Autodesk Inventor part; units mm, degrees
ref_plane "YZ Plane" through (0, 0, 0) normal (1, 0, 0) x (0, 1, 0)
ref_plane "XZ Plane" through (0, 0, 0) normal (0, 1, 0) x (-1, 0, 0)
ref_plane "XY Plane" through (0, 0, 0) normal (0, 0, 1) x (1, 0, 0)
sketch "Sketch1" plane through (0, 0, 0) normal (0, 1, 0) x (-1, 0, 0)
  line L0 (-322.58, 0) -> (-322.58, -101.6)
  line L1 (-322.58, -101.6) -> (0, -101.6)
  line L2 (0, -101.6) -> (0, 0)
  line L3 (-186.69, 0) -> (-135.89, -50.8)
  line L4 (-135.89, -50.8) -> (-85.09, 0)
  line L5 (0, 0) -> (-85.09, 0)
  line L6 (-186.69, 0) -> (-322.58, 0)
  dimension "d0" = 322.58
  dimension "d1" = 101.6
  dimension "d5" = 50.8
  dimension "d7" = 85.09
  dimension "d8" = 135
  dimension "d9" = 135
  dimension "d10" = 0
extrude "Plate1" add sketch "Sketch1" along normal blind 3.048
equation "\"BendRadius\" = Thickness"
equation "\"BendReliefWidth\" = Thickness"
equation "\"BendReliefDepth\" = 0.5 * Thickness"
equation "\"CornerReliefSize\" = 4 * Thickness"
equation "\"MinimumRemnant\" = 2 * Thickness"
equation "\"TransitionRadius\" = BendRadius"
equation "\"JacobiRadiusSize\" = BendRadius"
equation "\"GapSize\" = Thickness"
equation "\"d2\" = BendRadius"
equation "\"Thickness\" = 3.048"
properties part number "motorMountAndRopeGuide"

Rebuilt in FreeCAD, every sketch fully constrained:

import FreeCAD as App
import Part
import Sketcher
Q = App.Units.Quantity


def add_polygon(sketch, points):
    """Adds a closed chain of lines whose ends are joined by coincident constraints."""
    first, n = sketch.GeometryCount, len(points)
    for a, b in zip(points, points[1:] + points[:1]):
        sketch.addGeometry(Part.LineSegment(App.Vector(*a, 0), App.Vector(*b, 0)), False)
    for i in range(n):
        sketch.addConstraint(Sketcher.Constraint("Coincident", first + i, 2, first + (i + 1) % n, 1))

doc = App.newDocument("Part")
params = doc.addObject("Spreadsheet::Sheet", "Params")
for row, (alias, value) in enumerate([
    ("sketch1_height", "4 in"),
    ("sketch1_width", "12.7 in"),
    ("sketch1_width2", "3.35 in"),
    ("pad1_length", "0.12 in"),
], start=1):
    params.set(f"A{row}", alias)
    params.set(f"B{row}", "=" + value)
    params.setAlias(f"B{row}", alias)

body = doc.addObject("PartDesign::Body", "Body")

# Sketch on XZ plane
sketch1 = body.newObject("Sketcher::SketchObject", "Sketch")
sketch1.AttachmentSupport = (doc.getObject("XZ_Plane"), [""])
sketch1.MapMode = "FlatFace"
add_polygon(sketch1, [(187, 0), (323, 0), (323, -102), (0, -102), (0, 0), (85, 0), (136, -51)])  # lines 0-6
sketch1.addConstraint([
    Sketcher.Constraint("Horizontal", 0),
    Sketcher.Constraint("Vertical", 1),
    Sketcher.Constraint("Horizontal", 2),
    Sketcher.Constraint("Vertical", 3),
    Sketcher.Constraint("Horizontal", 4),
    Sketcher.Constraint("Coincident", 3, 2, -1, 1),
    Sketcher.Constraint("PointOnObject", 0, 2, -1),
    Sketcher.Constraint("Perpendicular", 5, 6),
    Sketcher.Constraint("Equal", 5, 6),
    Sketcher.Constraint("DistanceY", 1, 2, 1, 1, Q("4 in")),
    Sketcher.Constraint("DistanceX", 2, 2, 2, 1, Q("12.7 in")),
    Sketcher.Constraint("DistanceY", 5, 2, -1, 1, Q("2 in")),
    Sketcher.Constraint("DistanceX", 4, 1, 4, 2, Q("3.35 in")),
])
sketch1.setExpression("Constraints[16]", "Params.sketch1_height")
sketch1.setExpression("Constraints[17]", "Params.sketch1_width")
sketch1.setExpression("Constraints[19]", "Params.sketch1_width2")
pad1 = body.newObject("PartDesign::Pad", "Pad")
pad1.Profile = sketch1
pad1.setExpression("Length", "Params.pad1_length")
pad1.Reversed = True

doc.recompute()
